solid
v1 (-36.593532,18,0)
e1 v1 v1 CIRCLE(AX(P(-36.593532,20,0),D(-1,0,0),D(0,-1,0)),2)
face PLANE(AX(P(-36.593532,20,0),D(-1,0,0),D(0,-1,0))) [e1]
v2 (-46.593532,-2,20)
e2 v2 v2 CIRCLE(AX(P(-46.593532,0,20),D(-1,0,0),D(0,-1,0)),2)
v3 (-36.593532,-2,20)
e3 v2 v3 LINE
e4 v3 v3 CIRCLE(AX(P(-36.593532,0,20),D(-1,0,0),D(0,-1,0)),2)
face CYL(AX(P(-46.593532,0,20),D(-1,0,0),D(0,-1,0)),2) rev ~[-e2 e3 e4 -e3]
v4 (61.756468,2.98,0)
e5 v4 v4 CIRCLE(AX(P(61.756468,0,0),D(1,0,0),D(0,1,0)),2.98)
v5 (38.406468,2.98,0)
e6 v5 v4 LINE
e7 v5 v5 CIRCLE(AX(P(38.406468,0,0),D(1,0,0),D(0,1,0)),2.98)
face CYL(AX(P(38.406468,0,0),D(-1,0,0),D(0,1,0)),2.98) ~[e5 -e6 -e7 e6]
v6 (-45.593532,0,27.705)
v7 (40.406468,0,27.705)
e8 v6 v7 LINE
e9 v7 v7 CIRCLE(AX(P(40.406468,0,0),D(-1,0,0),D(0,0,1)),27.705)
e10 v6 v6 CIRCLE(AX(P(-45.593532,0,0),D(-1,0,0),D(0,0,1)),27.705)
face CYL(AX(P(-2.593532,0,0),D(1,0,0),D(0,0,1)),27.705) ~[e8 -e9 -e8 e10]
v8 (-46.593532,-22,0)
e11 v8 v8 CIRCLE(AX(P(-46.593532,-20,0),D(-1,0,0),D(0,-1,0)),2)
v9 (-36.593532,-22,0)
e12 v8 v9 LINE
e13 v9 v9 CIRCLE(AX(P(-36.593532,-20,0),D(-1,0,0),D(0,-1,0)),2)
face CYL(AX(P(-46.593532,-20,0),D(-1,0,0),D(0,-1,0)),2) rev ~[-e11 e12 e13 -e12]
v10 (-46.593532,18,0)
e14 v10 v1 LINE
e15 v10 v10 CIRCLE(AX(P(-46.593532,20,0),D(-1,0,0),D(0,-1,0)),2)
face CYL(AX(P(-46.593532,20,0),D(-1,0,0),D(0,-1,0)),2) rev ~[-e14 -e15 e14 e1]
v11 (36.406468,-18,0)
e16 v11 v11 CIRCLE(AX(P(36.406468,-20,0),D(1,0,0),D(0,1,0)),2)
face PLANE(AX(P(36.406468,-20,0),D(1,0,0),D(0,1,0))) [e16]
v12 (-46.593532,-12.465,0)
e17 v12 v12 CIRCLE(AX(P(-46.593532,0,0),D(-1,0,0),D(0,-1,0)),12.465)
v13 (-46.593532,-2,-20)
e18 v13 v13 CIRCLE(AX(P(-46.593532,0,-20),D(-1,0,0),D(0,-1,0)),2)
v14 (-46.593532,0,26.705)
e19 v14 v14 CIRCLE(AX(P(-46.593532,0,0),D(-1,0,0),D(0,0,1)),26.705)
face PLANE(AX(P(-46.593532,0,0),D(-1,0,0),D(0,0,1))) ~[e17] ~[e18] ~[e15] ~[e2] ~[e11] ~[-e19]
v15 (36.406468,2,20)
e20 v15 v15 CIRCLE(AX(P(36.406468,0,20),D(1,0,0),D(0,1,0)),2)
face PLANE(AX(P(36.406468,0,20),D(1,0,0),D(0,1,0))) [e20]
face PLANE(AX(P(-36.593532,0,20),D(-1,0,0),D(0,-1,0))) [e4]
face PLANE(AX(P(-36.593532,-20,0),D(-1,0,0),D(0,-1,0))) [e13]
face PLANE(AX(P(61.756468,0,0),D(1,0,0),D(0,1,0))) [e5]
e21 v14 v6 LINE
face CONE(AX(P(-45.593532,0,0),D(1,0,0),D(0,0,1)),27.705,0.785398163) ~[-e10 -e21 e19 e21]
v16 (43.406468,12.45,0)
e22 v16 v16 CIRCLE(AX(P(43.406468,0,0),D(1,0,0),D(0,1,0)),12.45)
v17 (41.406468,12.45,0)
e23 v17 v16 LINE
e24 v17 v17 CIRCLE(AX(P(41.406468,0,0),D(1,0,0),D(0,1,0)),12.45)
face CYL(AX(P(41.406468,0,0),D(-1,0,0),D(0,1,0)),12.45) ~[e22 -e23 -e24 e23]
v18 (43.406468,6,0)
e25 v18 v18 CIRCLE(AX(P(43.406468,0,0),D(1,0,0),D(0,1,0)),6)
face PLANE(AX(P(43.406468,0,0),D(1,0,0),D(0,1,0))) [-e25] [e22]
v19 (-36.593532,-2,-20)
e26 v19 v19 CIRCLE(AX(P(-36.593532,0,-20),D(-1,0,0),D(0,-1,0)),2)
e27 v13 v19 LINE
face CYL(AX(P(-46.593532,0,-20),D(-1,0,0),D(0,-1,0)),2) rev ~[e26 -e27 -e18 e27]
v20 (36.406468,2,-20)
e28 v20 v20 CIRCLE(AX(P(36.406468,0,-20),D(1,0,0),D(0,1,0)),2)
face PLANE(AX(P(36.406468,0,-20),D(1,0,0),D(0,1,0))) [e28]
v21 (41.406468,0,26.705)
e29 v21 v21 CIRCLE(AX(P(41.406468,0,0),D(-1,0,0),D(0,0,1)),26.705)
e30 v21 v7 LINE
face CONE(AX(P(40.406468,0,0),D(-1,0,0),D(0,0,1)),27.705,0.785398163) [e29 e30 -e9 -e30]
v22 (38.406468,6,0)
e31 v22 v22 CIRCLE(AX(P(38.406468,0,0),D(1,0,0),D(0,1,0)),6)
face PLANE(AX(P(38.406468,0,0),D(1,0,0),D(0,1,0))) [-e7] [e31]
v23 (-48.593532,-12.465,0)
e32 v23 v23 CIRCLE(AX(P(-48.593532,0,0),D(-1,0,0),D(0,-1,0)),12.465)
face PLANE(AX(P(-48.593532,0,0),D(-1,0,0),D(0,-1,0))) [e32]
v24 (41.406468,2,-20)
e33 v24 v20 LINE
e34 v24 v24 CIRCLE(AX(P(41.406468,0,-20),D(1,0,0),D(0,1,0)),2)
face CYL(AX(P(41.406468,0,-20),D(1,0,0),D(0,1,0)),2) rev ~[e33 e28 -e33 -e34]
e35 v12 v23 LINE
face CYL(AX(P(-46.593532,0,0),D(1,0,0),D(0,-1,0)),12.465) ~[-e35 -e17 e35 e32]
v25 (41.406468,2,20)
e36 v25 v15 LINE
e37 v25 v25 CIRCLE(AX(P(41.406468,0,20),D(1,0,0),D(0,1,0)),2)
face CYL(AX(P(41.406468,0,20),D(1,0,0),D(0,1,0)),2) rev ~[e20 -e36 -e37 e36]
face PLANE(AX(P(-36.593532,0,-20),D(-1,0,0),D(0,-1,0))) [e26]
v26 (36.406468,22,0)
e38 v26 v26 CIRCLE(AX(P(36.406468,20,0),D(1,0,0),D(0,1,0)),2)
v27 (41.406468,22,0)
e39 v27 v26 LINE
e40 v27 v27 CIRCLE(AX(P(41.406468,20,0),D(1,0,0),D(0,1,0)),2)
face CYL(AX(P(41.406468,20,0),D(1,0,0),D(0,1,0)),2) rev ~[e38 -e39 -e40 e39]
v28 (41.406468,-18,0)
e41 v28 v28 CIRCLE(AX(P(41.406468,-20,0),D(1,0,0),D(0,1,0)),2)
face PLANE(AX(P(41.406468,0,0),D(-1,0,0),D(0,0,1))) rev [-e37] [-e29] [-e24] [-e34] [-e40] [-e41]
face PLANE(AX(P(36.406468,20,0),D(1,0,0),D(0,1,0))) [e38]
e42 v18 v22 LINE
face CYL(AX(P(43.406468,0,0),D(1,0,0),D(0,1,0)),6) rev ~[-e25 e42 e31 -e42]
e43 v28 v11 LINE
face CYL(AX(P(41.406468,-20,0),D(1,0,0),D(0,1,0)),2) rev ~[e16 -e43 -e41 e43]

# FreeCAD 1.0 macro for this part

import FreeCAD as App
import Part
import Sketcher
from FreeCAD import Vector


def edges_at(feature, points):
    """Names of the edges that pass closest to the given points."""
    edges = feature.Shape.Edges
    near = lambda p: min(range(len(edges)), key=lambda i: edges[i].distToShape(Part.Vertex(*p))[0])
    return sorted({f"Edge{near(p) + 1}" for p in points})

doc = App.newDocument("Part")
params = doc.addObject("Spreadsheet::Sheet", "Params")
for row, (alias, value) in enumerate([
    ("sketch1_width", "88 mm"),
    ("revolution_angle", "360 deg"),
    ("chamfer_size", "1 mm"),
    ("sketch2_diameter", "24.9 mm"),
    ("pad1_length", "2 mm"),
    ("sketch3_diameter", "24.93 mm"),
    ("pad2_length", "2 mm"),
    ("sketch4_diameter", "4 mm"),
    ("pocket1_length", "10 mm"),
    ("sketch5_diameter", "12 mm"),
    ("pocket2_length", "5 mm"),
    ("sketch6_diameter", "5.96 mm"),
    ("pad3_length", "23.35 mm"),
    ("sketch7_diameter", "4 mm"),
    ("pocket3_length", "5 mm"),
], start=1):
    params.set(f"A{row}", alias)
    params.set(f"B{row}", "=" + value)
    params.setAlias(f"B{row}", alias)

body = doc.addObject("PartDesign::Body", "Body")

# Sketch on XZ plane
sketch1 = body.newObject("Sketcher::SketchObject", "Sketch")
sketch1.AttachmentSupport = (doc.getObject("XZ_Plane"), [""])
sketch1.MapMode = "FlatFace"
sketch1.addGeometry(Part.LineSegment(Vector(-46.593532, 27.705, 0), Vector(-46.593532, 0, 0)), False)
sketch1.addGeometry(Part.LineSegment(Vector(-46.593532, 0, 0), Vector(41.406468, 0, 0)), False)
sketch1.addGeometry(Part.LineSegment(Vector(41.406468, 0, 0), Vector(41.406468, 27.705, 0)), False)
sketch1.addGeometry(Part.LineSegment(Vector(41.406468, 27.705, 0), Vector(-46.593532, 27.705, 0)), False)
sketch1.addConstraint(Sketcher.Constraint("Coincident", 0, 2, 1, 1))
sketch1.addConstraint(Sketcher.Constraint("Coincident", 1, 2, 2, 1))
sketch1.addConstraint(Sketcher.Constraint("Coincident", 2, 2, 3, 1))
sketch1.addConstraint(Sketcher.Constraint("Coincident", 3, 2, 0, 1))
sketch1.addConstraint(Sketcher.Constraint("Vertical", 0))
sketch1.addConstraint(Sketcher.Constraint("Horizontal", 1))
sketch1.addConstraint(Sketcher.Constraint("Vertical", 2))
sketch1.addConstraint(Sketcher.Constraint("Horizontal", 3))
sketch1.addConstraint(Sketcher.Constraint("PointOnObject", 0, 2, -1))
sketch1.addConstraint(Sketcher.Constraint("DistanceX", 1, 1, 1, 2, 88.0))
sketch1.addConstraint(Sketcher.Constraint("DistanceY", 0, 2, 0, 1, 27.705))
sketch1.addConstraint(Sketcher.Constraint("DistanceX", 0, 2, -1, 1, 46.593532))
sketch1.setExpression("Constraints[9]", "Params.sketch1_width")
revolution = body.newObject("PartDesign::Revolution", "Revolution")
revolution.Profile = sketch1
revolution.ReferenceAxis = (sketch1, ["H_Axis"])
revolution.setExpression("Angle", "Params.revolution_angle")
doc.recompute()

chamfer = body.newObject("PartDesign::Chamfer", "Chamfer")
chamfer.Base = (revolution, edges_at(revolution, [(-46.594, 0, -27.705), (41.406, 0, -27.705)]))
chamfer.setExpression("Size", "Params.chamfer_size")

# Sketch on YZ plane
sketch2 = body.newObject("Sketcher::SketchObject", "Sketch001")
sketch2.AttachmentSupport = (doc.getObject("YZ_Plane"), [""])
sketch2.MapMode = "FlatFace"
sketch2.AttachmentOffset = App.Placement(Vector(0, 0, 41.406468), App.Rotation())
sketch2.addGeometry(Part.Circle(Vector(0, 0, 0), Vector(0, 0, 1), 12.45), False)
sketch2.addConstraint(Sketcher.Constraint("Coincident", 0, 3, -1, 1))
sketch2.addConstraint(Sketcher.Constraint("Diameter", 0, 24.9))
sketch2.setExpression("Constraints[1]", "Params.sketch2_diameter")
pad1 = body.newObject("PartDesign::Pad", "Pad")
pad1.Profile = sketch2
pad1.setExpression("Length", "Params.pad1_length")

# Sketch on YZ plane
sketch3 = body.newObject("Sketcher::SketchObject", "Sketch002")
sketch3.AttachmentSupport = (doc.getObject("YZ_Plane"), [""])
sketch3.MapMode = "FlatFace"
sketch3.AttachmentOffset = App.Placement(Vector(0, 0, -46.593532), App.Rotation())
sketch3.addGeometry(Part.Circle(Vector(0, 0, 0), Vector(0, 0, 1), 12.465), False)
sketch3.addConstraint(Sketcher.Constraint("Coincident", 0, 3, -1, 1))
sketch3.addConstraint(Sketcher.Constraint("Diameter", 0, 24.93))
sketch3.setExpression("Constraints[1]", "Params.sketch3_diameter")
pad2 = body.newObject("PartDesign::Pad", "Pad001")
pad2.Profile = sketch3
pad2.setExpression("Length", "Params.pad2_length")
pad2.Reversed = True

# Sketch on YZ plane
sketch4 = body.newObject("Sketcher::SketchObject", "Sketch003")
sketch4.AttachmentSupport = (doc.getObject("YZ_Plane"), [""])
sketch4.MapMode = "FlatFace"
sketch4.AttachmentOffset = App.Placement(Vector(0, 0, -46.593532), App.Rotation())
sketch4.addGeometry(Part.Circle(Vector(0, 20, 0), Vector(0, 0, 1), 2), False)
sketch4.addGeometry(Part.Circle(Vector(20, 0, 0), Vector(0, 0, 1), 2), False)
sketch4.addGeometry(Part.Circle(Vector(0, -20, 0), Vector(0, 0, 1), 2), False)
sketch4.addGeometry(Part.Circle(Vector(-20, 0, 0), Vector(0, 0, 1), 2), False)
sketch4.addConstraint(Sketcher.Constraint("Equal", 0, 1))
sketch4.addConstraint(Sketcher.Constraint("Equal", 1, 2))
sketch4.addConstraint(Sketcher.Constraint("Equal", 2, 3))
sketch4.addConstraint(Sketcher.Constraint("Symmetric", 0, 3, 2, 3, -1, 1))
sketch4.addConstraint(Sketcher.Constraint("Symmetric", 1, 3, 3, 3, -1, 1))
sketch4.addConstraint(Sketcher.Constraint("PointOnObject", 0, 3, -2))
sketch4.addConstraint(Sketcher.Constraint("PointOnObject", 1, 3, -1))
sketch4.addConstraint(Sketcher.Constraint("Diameter", 0, 4.0))
sketch4.addConstraint(Sketcher.Constraint("DistanceY", -1, 1, 0, 3, 20.0))
sketch4.addConstraint(Sketcher.Constraint("DistanceX", -1, 1, 1, 3, 20.0))
sketch4.setExpression("Constraints[7]", "Params.sketch4_diameter")
pocket1 = body.newObject("PartDesign::Pocket", "Pocket")
pocket1.Profile = sketch4
pocket1.setExpression("Length", "Params.pocket1_length")
pocket1.Reversed = True

# Sketch on YZ plane
sketch5 = body.newObject("Sketcher::SketchObject", "Sketch004")
sketch5.AttachmentSupport = (doc.getObject("YZ_Plane"), [""])
sketch5.MapMode = "FlatFace"
sketch5.AttachmentOffset = App.Placement(Vector(0, 0, 43.406468), App.Rotation())
sketch5.addGeometry(Part.Circle(Vector(0, 0, 0), Vector(0, 0, 1), 6), False)
sketch5.addConstraint(Sketcher.Constraint("Coincident", 0, 3, -1, 1))
sketch5.addConstraint(Sketcher.Constraint("Diameter", 0, 12.0))
sketch5.setExpression("Constraints[1]", "Params.sketch5_diameter")
pocket2 = body.newObject("PartDesign::Pocket", "Pocket001")
pocket2.Profile = sketch5
pocket2.setExpression("Length", "Params.pocket2_length")

# Sketch on YZ plane
sketch6 = body.newObject("Sketcher::SketchObject", "Sketch005")
sketch6.AttachmentSupport = (doc.getObject("YZ_Plane"), [""])
sketch6.MapMode = "FlatFace"
sketch6.AttachmentOffset = App.Placement(Vector(0, 0, 38.406468), App.Rotation())
sketch6.addGeometry(Part.Circle(Vector(0, 0, 0), Vector(0, 0, 1), 2.98), False)
sketch6.addConstraint(Sketcher.Constraint("Coincident", 0, 3, -1, 1))
sketch6.addConstraint(Sketcher.Constraint("Diameter", 0, 5.96))
sketch6.setExpression("Constraints[1]", "Params.sketch6_diameter")
pad3 = body.newObject("PartDesign::Pad", "Pad002")
pad3.Profile = sketch6
pad3.setExpression("Length", "Params.pad3_length")

# Sketch on YZ plane
sketch7 = body.newObject("Sketcher::SketchObject", "Sketch006")
sketch7.AttachmentSupport = (doc.getObject("YZ_Plane"), [""])
sketch7.MapMode = "FlatFace"
sketch7.AttachmentOffset = App.Placement(Vector(0, 0, 41.406468), App.Rotation())
sketch7.addGeometry(Part.Circle(Vector(0, 20, 0), Vector(0, 0, 1), 2), False)
sketch7.addGeometry(Part.Circle(Vector(20, 0, 0), Vector(0, 0, 1), 2), False)
sketch7.addGeometry(Part.Circle(Vector(0, -20, 0), Vector(0, 0, 1), 2), False)
sketch7.addGeometry(Part.Circle(Vector(-20, 0, 0), Vector(0, 0, 1), 2), False)
sketch7.addConstraint(Sketcher.Constraint("Equal", 0, 1))
sketch7.addConstraint(Sketcher.Constraint("Equal", 1, 2))
sketch7.addConstraint(Sketcher.Constraint("Equal", 2, 3))
sketch7.addConstraint(Sketcher.Constraint("Symmetric", 0, 3, 2, 3, -1, 1))
sketch7.addConstraint(Sketcher.Constraint("Symmetric", 1, 3, 3, 3, -1, 1))
sketch7.addConstraint(Sketcher.Constraint("PointOnObject", 0, 3, -2))
sketch7.addConstraint(Sketcher.Constraint("PointOnObject", 1, 3, -1))
sketch7.addConstraint(Sketcher.Constraint("Diameter", 0, 4.0))
sketch7.addConstraint(Sketcher.Constraint("DistanceY", -1, 1, 0, 3, 20.0))
sketch7.addConstraint(Sketcher.Constraint("DistanceX", -1, 1, 1, 3, 20.0))
sketch7.setExpression("Constraints[7]", "Params.sketch7_diameter")
pocket3 = body.newObject("PartDesign::Pocket", "Pocket002")
pocket3.Profile = sketch7
pocket3.setExpression("Length", "Params.pocket3_length")

doc.recompute()
